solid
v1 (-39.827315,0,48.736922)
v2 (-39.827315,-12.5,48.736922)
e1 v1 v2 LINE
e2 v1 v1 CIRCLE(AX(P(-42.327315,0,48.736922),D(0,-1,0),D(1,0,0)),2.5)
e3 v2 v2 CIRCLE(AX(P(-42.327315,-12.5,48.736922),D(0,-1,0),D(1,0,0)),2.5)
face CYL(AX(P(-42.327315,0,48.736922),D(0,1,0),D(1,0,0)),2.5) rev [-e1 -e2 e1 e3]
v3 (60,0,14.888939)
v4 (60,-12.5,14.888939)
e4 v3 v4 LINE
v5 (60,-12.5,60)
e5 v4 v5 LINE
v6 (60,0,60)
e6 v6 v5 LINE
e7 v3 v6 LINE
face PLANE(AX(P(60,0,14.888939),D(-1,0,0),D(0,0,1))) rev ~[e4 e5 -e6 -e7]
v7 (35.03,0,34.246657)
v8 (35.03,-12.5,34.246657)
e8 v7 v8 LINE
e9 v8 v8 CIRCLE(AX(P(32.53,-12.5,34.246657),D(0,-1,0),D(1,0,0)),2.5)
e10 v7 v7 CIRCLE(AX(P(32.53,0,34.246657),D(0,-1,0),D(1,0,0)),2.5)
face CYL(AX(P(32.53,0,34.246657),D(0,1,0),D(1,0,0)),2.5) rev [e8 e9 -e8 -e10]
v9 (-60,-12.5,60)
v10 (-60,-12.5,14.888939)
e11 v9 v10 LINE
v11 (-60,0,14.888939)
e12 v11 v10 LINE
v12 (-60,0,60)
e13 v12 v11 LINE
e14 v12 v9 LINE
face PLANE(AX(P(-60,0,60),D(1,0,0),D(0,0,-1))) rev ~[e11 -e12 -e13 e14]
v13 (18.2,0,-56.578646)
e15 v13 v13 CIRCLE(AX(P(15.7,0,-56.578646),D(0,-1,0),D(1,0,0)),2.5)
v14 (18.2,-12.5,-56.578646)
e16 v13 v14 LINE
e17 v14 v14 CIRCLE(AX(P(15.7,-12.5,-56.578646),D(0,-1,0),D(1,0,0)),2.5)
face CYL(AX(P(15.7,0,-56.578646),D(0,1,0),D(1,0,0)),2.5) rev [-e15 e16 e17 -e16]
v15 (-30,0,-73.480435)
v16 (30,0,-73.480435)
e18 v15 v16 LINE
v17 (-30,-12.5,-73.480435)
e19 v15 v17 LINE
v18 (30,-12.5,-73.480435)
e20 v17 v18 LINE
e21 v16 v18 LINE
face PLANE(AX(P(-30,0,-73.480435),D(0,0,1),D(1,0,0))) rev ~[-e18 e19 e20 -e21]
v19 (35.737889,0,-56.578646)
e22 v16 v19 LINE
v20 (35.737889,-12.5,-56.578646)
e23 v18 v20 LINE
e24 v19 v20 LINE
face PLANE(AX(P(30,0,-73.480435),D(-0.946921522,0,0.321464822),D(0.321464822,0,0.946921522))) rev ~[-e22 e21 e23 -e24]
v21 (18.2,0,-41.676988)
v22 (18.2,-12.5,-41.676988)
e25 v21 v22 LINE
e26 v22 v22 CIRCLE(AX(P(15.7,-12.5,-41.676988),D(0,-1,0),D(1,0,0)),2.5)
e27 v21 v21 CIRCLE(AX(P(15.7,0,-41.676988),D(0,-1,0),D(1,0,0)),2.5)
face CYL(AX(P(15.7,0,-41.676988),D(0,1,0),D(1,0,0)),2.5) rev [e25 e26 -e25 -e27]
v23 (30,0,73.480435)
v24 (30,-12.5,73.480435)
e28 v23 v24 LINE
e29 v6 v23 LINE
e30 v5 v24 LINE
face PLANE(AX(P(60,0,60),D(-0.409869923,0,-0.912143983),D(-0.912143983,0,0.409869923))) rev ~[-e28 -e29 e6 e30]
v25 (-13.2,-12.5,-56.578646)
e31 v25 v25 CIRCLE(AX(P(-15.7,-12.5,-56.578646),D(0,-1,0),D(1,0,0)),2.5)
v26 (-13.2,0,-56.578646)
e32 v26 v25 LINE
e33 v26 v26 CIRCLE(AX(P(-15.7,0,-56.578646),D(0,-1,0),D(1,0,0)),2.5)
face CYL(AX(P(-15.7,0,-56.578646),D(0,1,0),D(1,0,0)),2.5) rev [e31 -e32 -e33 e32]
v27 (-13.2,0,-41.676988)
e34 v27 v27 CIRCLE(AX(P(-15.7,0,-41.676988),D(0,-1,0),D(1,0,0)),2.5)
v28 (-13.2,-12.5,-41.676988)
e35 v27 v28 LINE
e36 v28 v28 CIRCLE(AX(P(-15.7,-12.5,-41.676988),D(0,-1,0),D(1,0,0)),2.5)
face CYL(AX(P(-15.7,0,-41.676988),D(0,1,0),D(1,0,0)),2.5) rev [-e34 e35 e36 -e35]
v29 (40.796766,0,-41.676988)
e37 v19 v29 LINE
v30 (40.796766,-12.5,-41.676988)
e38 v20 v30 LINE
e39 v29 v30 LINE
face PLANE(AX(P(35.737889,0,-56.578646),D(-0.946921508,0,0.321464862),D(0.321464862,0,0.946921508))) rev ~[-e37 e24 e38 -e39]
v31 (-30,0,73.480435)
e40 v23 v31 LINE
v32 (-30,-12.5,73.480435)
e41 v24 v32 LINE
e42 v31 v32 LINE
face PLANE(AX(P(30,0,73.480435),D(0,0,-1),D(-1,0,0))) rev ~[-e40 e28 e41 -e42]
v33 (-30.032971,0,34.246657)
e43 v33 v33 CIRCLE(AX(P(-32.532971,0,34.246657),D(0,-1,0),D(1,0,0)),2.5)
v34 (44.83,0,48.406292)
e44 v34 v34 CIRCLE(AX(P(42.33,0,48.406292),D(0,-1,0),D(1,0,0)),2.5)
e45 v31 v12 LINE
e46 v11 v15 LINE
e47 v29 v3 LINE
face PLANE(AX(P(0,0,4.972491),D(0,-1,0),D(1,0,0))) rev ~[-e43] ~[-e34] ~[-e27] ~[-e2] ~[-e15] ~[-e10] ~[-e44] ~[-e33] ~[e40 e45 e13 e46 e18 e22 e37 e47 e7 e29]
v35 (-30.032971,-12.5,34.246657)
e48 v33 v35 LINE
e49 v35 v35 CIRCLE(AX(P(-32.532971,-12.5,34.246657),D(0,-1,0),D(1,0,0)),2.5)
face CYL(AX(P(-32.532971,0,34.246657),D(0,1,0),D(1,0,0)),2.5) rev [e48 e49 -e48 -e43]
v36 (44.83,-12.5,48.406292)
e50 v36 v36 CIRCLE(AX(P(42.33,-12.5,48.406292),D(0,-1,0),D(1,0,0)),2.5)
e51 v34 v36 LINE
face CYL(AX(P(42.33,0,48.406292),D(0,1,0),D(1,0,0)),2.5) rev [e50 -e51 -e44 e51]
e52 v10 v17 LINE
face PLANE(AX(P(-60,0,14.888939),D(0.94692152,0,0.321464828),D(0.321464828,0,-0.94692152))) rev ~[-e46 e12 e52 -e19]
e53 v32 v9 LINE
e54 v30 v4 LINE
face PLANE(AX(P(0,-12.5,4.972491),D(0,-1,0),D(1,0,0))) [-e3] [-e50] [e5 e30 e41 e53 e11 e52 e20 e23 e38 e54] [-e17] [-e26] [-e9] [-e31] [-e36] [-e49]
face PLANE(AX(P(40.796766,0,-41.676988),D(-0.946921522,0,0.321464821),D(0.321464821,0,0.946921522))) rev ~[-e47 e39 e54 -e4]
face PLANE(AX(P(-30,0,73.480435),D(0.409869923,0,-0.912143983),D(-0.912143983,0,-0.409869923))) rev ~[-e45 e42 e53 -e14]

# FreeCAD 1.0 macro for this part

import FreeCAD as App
import Part
import Sketcher
from FreeCAD import Vector
Q = App.Units.Quantity


def add_polygon(sketch, points):
    """Adds a closed chain of lines whose ends are joined by coincident constraints."""
    first, n = sketch.GeometryCount, len(points)
    for a, b in zip(points, points[1:] + points[:1]):
        sketch.addGeometry(Part.LineSegment(App.Vector(*a, 0), App.Vector(*b, 0)), False)
    for i in range(n):
        sketch.addConstraint(Sketcher.Constraint("Coincident", first + i, 2, first + (i + 1) % n, 1))

doc = App.newDocument("Part")
body = doc.addObject("PartDesign::Body", "Body")

# Sketch on XZ plane
sketch1 = body.newObject("Sketcher::SketchObject", "Sketch")
sketch1.AttachmentSupport = (doc.getObject("XZ_Plane"), [""])
sketch1.MapMode = "FlatFace"
add_polygon(sketch1, [(30, 73.480435), (-30, 73.480435), (-60, 60), (-60, 14.888939), (-30, -73.480435), (30, -73.480435), (35.737889, -56.578646), (40.796766, -41.676988), (60, 14.888939), (60, 60)])  # lines 0-9
sketch1.addGeometry(Part.Circle(Vector(-15.7, -56.578646, 0), Vector(0, 0, 1), 2.5), False)  # 10
sketch1.addGeometry(Part.Circle(Vector(-15.7, -41.676988, 0), Vector(0, 0, 1), 2.5), False)  # 11
sketch1.addGeometry(Part.Circle(Vector(15.7, -56.578646, 0), Vector(0, 0, 1), 2.5), False)  # 12
sketch1.addGeometry(Part.Circle(Vector(15.7, -41.676988, 0), Vector(0, 0, 1), 2.5), False)  # 13
sketch1.addGeometry(Part.Circle(Vector(-32.532971, 34.246657, 0), Vector(0, 0, 1), 2.5), False)  # 14
sketch1.addGeometry(Part.Circle(Vector(-42.327315, 48.736922, 0), Vector(0, 0, 1), 2.5), False)  # 15
sketch1.addGeometry(Part.Circle(Vector(32.53, 34.246657, 0), Vector(0, 0, 1), 2.5), False)  # 16
sketch1.addGeometry(Part.Circle(Vector(42.33, 48.406292, 0), Vector(0, 0, 1), 2.5), False)  # 17
sketch1.addConstraint(Sketcher.Constraint("Horizontal", 0))
sketch1.addConstraint(Sketcher.Constraint("Vertical", 2))
sketch1.addConstraint(Sketcher.Constraint("Horizontal", 4))
sketch1.addConstraint(Sketcher.Constraint("Vertical", 8))
sketch1.addConstraint(Sketcher.Constraint("Equal", 10, 11))
sketch1.addConstraint(Sketcher.Constraint("Equal", 11, 12))
sketch1.addConstraint(Sketcher.Constraint("Equal", 12, 13))
sketch1.addConstraint(Sketcher.Constraint("Equal", 13, 14))
sketch1.addConstraint(Sketcher.Constraint("Equal", 14, 15))
sketch1.addConstraint(Sketcher.Constraint("Equal", 15, 16))
sketch1.addConstraint(Sketcher.Constraint("Equal", 16, 17))
sketch1.addConstraint(Sketcher.Constraint("Symmetric", 0, 2, 4, 2, -1, 1))
sketch1.addConstraint(Sketcher.Constraint("Symmetric", 10, 3, 12, 3, -2))
sketch1.addConstraint(Sketcher.Constraint("Symmetric", 11, 3, 13, 3, -2))
sketch1.addConstraint(Sketcher.Constraint("Symmetric", 2, 2, 7, 2, -2))
sketch1.addConstraint(Sketcher.Constraint("Parallel", 5, 6))
sketch1.addConstraint(Sketcher.Constraint("Parallel", 6, 7))
sketch1.addConstraint(Sketcher.Constraint("Horizontal", 14, 3, 16, 3))
sketch1.addConstraint(Sketcher.Constraint("Horizontal", 12, 3, 5, 2))
sketch1.addConstraint(Sketcher.Constraint("Horizontal", 13, 3, 6, 2))
sketch1.addConstraint(Sketcher.Constraint("Horizontal", 1, 2, 8, 2))
sketch1.addConstraint(Sketcher.Constraint("Vertical", 10, 3, 11, 3))
sketch1.addConstraint(Sketcher.Constraint("Vertical", 0, 2, 3, 2))
sketch1.addConstraint(Sketcher.Constraint("Vertical", 4, 2, 9, 2))
sketch1.addConstraint(Sketcher.Constraint("Diameter", 10, Q("5 mm")))
sketch1.addConstraint(Sketcher.Constraint("DistanceX", 0, 2, 0, 1, Q("60 mm")))
sketch1.addConstraint(Sketcher.Constraint("DistanceX", 1, 2, -1, 1, Q("60 mm")))
sketch1.addConstraint(Sketcher.Constraint("DistanceY", -1, 1, 1, 2, Q("60 mm")))
sketch1.addConstraint(Sketcher.Constraint("DistanceX", 10, 3, -1, 1, Q("15.7 mm")))
sketch1.addConstraint(Sketcher.Constraint("DistanceX", 16, 3, 17, 3, Q("9.8 mm")))
sketch1.addConstraint(Sketcher.Constraint("DistanceX", -1, 1, 16, 3, Q("32.53 mm")))
sketch1.addConstraint(Sketcher.Constraint("DistanceY", 2, 2, 2, 1, Q("45.111061 mm")))
sketch1.addConstraint(Sketcher.Constraint("Distance", 6, Q("15.736952 mm")))
sketch1.addConstraint(Sketcher.Constraint("DistanceX", 14, 3, -1, 1, Q("32.532971 mm")))
sketch1.addConstraint(Sketcher.Constraint("DistanceX", -1, 1, 5, 2, Q("35.737889 mm")))
sketch1.addConstraint(Sketcher.Constraint("DistanceY", 11, 3, 15, 3, Q("90.41391 mm")))
sketch1.addConstraint(Sketcher.Constraint("DistanceY", 10, 3, 15, 3, Q("105.315568 mm")))
sketch1.addConstraint(Sketcher.Constraint("DistanceY", 17, 3, 15, 3, Q("0.33063 mm")))
sketch1.addConstraint(Sketcher.Constraint("DistanceY", -1, 1, 14, 3, Q("34.246657 mm")))
sketch1.addConstraint(Sketcher.Constraint("DistanceX", 15, 3, -1, 1, Q("42.327315 mm")))
pad1 = body.newObject("PartDesign::Pad", "Pad")
pad1.Profile = sketch1
pad1.Length = 12.5

doc.recompute()
